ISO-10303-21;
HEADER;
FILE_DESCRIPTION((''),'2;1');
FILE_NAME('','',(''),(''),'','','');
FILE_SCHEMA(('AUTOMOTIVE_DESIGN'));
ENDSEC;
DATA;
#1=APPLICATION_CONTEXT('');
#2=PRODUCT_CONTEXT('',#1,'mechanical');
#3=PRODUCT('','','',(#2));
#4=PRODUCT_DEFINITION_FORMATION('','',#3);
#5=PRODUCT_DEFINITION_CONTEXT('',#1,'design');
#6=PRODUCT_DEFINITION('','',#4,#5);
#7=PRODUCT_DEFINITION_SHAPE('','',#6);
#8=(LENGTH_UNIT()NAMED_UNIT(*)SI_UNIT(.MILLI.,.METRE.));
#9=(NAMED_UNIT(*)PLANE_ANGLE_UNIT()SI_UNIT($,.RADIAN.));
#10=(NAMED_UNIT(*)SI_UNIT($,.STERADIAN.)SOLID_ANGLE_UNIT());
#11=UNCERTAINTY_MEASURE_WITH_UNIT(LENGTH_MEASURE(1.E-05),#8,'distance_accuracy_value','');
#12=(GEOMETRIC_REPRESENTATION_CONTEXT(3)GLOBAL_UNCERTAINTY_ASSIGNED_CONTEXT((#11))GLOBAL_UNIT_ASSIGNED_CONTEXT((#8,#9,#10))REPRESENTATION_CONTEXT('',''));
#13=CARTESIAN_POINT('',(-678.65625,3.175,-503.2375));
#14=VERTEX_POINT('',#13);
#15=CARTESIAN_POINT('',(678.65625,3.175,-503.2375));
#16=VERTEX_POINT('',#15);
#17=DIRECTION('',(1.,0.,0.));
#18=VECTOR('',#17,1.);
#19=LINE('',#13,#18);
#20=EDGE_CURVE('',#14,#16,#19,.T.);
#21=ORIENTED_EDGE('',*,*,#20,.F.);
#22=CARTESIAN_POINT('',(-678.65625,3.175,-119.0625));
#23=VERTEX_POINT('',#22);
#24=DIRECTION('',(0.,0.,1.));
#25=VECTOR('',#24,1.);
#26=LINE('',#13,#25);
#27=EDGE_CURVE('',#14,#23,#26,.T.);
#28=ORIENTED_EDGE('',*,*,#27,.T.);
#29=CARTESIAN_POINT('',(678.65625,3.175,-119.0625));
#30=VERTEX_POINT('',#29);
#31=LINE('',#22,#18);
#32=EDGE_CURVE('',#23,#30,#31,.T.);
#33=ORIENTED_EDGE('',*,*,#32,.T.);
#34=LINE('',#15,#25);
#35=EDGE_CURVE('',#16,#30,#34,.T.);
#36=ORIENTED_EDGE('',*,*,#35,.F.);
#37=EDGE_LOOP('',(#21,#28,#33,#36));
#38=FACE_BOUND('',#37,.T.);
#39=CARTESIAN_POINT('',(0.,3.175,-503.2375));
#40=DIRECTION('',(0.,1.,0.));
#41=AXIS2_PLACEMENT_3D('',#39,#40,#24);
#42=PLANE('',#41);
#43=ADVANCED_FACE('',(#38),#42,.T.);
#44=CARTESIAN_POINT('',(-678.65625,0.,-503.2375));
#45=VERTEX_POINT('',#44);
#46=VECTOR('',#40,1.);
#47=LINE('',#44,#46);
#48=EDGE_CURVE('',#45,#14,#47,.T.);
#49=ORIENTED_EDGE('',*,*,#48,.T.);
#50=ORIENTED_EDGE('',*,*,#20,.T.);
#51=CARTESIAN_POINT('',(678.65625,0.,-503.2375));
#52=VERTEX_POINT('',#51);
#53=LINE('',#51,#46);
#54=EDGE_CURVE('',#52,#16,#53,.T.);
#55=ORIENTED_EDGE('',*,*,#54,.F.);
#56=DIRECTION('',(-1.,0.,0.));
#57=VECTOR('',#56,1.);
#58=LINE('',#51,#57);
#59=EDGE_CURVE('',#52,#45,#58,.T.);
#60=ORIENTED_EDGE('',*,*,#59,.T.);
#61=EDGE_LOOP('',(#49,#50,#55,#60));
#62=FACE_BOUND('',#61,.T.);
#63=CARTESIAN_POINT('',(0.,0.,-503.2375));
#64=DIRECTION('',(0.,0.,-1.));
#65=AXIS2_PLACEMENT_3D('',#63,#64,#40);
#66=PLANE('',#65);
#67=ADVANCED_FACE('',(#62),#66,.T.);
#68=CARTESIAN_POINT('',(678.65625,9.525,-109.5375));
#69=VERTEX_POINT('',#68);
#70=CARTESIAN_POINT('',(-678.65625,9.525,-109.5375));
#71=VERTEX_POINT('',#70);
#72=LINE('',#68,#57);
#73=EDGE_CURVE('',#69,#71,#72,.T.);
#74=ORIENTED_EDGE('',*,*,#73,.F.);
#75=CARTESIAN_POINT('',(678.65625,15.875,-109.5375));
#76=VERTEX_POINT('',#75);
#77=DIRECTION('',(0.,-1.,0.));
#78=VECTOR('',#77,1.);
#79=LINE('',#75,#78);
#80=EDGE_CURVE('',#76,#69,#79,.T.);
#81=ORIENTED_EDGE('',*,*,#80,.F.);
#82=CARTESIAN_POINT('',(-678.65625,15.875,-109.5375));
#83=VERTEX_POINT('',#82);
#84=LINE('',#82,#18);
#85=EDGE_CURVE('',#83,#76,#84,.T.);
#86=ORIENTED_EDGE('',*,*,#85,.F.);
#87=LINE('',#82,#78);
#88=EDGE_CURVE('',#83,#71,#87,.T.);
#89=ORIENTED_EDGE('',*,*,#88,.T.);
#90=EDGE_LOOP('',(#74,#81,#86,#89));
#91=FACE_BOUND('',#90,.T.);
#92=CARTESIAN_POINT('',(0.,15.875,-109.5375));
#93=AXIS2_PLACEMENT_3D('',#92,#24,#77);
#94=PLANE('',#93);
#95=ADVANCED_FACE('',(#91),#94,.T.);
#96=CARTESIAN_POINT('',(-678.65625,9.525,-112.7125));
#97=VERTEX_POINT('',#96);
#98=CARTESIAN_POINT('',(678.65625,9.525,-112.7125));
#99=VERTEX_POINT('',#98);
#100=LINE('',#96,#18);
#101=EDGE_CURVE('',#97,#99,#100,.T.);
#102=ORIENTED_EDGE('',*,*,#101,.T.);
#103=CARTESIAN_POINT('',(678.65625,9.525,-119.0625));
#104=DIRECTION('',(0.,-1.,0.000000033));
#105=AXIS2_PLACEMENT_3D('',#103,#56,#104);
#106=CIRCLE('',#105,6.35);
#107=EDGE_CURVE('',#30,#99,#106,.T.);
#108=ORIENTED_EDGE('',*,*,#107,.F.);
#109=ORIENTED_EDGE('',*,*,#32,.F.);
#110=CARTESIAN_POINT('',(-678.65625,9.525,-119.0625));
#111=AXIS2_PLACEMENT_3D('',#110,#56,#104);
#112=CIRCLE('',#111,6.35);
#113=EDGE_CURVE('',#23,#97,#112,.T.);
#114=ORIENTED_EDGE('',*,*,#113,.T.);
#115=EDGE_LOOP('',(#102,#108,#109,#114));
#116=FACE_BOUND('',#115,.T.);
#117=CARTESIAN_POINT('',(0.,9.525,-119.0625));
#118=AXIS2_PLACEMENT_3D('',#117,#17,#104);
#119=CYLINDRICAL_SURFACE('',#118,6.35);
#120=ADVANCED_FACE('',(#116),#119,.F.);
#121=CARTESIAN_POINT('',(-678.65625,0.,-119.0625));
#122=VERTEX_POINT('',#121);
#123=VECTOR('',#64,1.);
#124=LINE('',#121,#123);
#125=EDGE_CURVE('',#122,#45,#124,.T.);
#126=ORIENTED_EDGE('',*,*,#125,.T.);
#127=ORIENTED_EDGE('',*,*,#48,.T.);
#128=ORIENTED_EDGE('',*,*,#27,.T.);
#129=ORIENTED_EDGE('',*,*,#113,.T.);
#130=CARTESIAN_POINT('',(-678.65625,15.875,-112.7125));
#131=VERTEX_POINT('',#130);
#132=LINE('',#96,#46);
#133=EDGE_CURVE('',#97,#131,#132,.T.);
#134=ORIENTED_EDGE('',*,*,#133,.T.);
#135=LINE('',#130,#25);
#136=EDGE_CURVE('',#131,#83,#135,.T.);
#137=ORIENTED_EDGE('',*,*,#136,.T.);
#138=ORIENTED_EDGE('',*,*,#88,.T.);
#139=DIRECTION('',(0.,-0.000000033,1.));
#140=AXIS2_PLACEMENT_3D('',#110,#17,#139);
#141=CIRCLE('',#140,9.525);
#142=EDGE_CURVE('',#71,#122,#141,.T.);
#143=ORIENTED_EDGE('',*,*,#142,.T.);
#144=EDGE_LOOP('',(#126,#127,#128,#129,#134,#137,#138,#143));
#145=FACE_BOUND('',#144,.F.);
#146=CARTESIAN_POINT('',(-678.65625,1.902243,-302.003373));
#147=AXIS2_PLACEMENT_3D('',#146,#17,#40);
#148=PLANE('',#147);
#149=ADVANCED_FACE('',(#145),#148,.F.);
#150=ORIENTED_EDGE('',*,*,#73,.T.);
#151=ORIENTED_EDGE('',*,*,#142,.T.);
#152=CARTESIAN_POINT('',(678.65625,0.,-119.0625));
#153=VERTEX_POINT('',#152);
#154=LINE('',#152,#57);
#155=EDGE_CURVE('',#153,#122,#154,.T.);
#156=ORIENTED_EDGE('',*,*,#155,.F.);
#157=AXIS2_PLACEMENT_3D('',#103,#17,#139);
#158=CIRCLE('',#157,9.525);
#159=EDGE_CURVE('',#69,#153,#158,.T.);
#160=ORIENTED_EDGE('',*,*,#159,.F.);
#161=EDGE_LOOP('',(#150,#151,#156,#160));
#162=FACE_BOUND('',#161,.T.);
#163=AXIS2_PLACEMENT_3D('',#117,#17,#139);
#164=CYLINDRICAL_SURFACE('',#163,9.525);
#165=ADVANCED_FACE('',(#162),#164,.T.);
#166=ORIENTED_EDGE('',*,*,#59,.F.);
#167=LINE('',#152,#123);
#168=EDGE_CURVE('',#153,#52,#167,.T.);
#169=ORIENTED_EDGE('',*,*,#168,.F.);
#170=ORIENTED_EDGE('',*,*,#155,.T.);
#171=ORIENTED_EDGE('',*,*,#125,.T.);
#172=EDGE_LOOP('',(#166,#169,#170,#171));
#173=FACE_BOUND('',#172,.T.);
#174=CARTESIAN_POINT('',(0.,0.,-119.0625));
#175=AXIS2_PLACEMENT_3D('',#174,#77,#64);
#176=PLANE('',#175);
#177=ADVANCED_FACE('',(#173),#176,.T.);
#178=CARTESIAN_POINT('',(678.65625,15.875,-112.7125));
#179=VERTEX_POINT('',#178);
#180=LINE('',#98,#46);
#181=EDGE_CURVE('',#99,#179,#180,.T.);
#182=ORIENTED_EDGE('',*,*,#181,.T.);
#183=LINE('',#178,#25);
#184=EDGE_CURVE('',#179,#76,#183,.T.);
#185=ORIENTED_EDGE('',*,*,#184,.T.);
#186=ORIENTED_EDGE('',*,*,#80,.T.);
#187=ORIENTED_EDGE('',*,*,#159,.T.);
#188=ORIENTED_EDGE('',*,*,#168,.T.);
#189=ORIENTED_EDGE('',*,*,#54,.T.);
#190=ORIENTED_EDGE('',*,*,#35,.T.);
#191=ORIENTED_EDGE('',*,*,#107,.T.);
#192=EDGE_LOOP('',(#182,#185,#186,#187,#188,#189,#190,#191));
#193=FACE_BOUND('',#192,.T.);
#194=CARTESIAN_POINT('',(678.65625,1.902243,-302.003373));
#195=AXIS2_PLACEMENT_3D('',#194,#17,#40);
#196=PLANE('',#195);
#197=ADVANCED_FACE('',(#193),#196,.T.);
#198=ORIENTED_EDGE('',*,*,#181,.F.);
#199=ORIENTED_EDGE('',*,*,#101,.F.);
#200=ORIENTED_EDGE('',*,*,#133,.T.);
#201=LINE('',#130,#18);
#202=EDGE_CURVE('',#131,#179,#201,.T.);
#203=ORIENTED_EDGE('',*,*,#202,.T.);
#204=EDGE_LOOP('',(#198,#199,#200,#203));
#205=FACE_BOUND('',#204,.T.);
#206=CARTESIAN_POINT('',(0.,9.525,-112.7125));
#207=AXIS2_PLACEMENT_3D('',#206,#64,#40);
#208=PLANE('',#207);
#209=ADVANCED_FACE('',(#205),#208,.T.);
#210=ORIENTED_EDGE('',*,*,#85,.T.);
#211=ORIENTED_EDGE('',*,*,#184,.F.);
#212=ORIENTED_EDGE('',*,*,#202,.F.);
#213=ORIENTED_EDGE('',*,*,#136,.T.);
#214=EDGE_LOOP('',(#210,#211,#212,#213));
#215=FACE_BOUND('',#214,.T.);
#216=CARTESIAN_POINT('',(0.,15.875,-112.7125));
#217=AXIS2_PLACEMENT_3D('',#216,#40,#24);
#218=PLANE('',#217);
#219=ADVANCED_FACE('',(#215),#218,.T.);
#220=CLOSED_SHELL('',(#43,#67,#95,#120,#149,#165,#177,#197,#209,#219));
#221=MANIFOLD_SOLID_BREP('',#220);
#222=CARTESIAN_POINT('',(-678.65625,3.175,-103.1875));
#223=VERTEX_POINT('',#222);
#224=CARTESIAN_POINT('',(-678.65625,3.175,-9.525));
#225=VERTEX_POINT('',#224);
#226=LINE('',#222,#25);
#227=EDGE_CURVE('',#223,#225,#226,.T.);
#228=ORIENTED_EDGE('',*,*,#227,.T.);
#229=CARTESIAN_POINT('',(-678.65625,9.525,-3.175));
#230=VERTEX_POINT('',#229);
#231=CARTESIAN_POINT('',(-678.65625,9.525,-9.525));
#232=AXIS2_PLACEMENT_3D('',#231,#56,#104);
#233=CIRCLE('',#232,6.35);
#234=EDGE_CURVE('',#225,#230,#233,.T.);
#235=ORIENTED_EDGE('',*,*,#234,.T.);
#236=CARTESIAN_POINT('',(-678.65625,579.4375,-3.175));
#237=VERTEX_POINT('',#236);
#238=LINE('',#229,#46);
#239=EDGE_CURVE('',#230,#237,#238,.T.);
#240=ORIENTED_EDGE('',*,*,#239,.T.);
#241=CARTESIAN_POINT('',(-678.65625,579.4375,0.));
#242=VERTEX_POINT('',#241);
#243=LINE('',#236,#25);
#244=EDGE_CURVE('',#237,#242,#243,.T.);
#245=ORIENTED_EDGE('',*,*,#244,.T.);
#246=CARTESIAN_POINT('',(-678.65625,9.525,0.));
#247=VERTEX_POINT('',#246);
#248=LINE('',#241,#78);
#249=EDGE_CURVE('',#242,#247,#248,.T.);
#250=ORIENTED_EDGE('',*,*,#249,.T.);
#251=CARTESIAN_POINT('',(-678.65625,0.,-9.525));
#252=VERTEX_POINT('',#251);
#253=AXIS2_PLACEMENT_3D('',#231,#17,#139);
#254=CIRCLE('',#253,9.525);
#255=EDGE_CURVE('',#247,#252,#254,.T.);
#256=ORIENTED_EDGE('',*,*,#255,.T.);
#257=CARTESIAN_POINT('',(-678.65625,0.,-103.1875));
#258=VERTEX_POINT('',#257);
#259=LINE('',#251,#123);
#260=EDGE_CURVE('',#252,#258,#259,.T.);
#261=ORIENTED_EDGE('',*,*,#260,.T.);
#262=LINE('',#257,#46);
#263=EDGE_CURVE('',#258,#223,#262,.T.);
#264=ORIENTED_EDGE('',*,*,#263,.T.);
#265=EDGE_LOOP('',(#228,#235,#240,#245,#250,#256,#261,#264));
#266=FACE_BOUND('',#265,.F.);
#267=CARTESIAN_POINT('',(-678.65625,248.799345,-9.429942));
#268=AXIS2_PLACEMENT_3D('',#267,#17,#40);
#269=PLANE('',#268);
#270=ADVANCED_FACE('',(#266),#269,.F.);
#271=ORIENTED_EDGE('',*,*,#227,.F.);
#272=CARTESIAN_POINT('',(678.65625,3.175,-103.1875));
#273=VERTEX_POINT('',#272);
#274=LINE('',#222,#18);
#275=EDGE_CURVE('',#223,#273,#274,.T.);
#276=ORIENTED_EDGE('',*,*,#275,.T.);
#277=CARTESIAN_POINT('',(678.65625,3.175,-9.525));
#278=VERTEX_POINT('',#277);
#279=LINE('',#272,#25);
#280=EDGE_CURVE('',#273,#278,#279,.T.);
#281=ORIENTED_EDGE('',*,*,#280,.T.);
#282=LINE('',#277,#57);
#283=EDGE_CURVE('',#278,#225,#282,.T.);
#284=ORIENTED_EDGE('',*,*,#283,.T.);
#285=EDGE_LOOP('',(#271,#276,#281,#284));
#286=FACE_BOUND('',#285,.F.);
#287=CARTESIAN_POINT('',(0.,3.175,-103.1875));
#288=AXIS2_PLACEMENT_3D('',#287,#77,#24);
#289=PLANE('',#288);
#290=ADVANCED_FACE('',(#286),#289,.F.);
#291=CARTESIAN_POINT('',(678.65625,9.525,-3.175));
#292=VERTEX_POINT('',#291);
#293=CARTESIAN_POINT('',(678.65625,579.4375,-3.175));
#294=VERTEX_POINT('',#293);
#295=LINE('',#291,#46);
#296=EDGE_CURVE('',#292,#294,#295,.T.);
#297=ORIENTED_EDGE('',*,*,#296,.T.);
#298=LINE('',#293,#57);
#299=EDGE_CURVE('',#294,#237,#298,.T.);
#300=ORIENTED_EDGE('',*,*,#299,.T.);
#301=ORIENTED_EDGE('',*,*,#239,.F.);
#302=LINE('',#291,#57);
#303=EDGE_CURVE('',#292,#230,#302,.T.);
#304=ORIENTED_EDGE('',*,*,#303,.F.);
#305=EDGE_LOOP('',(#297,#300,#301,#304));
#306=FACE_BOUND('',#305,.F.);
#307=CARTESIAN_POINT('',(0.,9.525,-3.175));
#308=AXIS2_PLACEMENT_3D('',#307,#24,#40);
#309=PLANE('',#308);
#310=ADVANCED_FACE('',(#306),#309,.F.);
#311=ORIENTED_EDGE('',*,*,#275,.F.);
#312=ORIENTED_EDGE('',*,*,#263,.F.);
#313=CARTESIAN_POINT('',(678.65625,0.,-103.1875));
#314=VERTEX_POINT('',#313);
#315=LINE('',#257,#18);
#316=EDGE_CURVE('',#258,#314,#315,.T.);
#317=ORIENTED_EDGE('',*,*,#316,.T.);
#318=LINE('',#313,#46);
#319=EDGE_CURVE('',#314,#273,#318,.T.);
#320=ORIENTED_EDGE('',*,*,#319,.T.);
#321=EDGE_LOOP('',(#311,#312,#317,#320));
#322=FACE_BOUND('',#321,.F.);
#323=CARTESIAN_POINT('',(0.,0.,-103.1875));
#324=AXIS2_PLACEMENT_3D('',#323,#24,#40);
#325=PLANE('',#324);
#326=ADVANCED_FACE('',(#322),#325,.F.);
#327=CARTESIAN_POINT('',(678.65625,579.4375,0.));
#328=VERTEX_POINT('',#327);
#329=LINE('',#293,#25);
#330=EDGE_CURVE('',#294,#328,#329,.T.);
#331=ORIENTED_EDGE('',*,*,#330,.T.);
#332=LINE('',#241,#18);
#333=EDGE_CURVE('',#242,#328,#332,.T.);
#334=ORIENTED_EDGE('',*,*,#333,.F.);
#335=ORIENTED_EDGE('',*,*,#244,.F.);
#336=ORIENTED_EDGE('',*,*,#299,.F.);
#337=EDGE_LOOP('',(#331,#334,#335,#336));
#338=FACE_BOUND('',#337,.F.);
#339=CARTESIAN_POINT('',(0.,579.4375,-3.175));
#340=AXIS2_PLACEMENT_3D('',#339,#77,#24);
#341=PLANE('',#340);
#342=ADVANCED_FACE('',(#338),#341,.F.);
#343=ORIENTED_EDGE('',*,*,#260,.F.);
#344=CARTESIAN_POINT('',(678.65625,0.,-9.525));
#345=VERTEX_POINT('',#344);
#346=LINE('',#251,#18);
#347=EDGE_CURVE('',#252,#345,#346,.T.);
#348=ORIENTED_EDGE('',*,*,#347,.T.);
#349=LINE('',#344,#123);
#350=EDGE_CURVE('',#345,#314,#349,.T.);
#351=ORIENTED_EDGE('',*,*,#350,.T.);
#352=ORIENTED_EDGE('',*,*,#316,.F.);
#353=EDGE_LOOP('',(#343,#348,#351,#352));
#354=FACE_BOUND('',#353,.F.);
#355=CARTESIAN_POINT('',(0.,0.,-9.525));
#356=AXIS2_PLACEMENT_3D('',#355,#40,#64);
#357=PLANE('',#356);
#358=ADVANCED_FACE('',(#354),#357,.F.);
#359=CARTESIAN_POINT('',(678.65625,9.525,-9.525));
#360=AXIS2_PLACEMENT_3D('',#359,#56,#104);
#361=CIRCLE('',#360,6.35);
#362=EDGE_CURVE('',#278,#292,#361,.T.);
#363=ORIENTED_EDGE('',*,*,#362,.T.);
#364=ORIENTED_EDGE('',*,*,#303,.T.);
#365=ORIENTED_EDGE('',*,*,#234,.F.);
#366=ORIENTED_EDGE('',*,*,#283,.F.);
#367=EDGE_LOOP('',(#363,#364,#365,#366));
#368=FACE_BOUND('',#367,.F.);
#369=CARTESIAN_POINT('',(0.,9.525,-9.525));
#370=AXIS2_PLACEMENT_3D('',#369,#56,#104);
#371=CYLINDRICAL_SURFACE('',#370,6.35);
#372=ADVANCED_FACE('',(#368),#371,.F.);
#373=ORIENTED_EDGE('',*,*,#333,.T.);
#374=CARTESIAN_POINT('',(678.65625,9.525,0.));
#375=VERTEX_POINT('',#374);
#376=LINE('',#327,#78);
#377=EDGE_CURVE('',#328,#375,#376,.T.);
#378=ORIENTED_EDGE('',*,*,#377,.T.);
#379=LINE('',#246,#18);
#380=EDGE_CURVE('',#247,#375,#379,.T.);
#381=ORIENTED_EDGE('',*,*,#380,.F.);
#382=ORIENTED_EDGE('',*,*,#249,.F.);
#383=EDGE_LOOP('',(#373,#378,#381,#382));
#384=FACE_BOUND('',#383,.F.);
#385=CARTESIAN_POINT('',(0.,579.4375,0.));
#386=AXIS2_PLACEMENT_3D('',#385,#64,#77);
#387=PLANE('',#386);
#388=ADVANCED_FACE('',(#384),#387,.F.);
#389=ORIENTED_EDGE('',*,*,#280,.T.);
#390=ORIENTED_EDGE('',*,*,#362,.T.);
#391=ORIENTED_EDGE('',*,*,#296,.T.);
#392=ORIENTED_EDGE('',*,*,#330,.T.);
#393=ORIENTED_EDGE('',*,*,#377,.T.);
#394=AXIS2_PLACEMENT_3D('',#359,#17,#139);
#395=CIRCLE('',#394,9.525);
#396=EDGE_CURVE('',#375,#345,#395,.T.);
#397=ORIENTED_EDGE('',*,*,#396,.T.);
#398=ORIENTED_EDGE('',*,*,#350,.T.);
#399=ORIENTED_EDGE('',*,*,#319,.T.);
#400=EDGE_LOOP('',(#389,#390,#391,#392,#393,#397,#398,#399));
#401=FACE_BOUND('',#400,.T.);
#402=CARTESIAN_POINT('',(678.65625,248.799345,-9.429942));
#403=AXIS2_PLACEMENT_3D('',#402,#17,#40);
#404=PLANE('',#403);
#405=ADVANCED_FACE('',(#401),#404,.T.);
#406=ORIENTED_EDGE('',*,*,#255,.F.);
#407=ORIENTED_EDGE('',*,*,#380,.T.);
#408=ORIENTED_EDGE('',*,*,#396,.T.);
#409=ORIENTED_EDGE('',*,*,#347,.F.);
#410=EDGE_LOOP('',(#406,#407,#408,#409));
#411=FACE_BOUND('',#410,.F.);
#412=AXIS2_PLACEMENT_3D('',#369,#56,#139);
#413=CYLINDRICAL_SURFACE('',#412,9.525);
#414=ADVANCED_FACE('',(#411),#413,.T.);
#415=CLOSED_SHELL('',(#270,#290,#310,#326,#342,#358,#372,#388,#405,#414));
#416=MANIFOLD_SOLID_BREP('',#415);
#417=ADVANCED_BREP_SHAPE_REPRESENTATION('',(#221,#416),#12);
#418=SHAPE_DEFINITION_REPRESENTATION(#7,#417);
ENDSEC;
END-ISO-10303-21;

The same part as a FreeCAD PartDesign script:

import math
import FreeCAD as App
import Part
import Sketcher
from FreeCAD import Vector
Q = App.Units.Quantity

doc = App.newDocument("Part")
body = doc.addObject("PartDesign::Body", "Body")
body.AllowCompound = True

sketch1 = body.newObject("Sketcher::SketchObject", "Sketch")
sketch1.AttachmentSupport = (doc.getObject("YZ_Plane"), [""])
sketch1.MapMode = "FlatFace"
sketch1.addGeometry(Part.LineSegment(Vector(579.4, -3.2, 0), Vector(579.4, 0, 0)), False)
sketch1.addGeometry(Part.LineSegment(Vector(579.4, 0, 0), Vector(9.5, 0, 0)), False)
sketch1.addGeometry(Part.ArcOfCircle(Part.Circle(Vector(9.5, -9.5, 0), Vector(0, 0, 1), 9.5), math.radians(90), math.radians(180)), False)
sketch1.addGeometry(Part.LineSegment(Vector(0, -9.5, 0), Vector(0, -103.2, 0)), False)
sketch1.addGeometry(Part.LineSegment(Vector(0, -103.2, 0), Vector(3.2, -103.2, 0)), False)
sketch1.addGeometry(Part.LineSegment(Vector(3.2, -103.2, 0), Vector(3.2, -9.5, 0)), False)
sketch1.addGeometry(Part.ArcOfCircle(Part.Circle(Vector(9.5, -9.5, 0), Vector(0, 0, 1), 6.4), math.radians(90), math.radians(180)), False)
sketch1.addGeometry(Part.LineSegment(Vector(9.5, -3.2, 0), Vector(579.4, -3.2, 0)), False)
sketch1.addGeometry(Part.LineSegment(Vector(0, -503.2, 0), Vector(3.2, -503.2, 0)), False)
sketch1.addGeometry(Part.LineSegment(Vector(3.2, -503.2, 0), Vector(3.2, -119.1, 0)), False)
sketch1.addGeometry(Part.ArcOfCircle(Part.Circle(Vector(9.5, -119.1, 0), Vector(0, 0, 1), 6.4), math.radians(90), math.radians(180)), False)
sketch1.addGeometry(Part.LineSegment(Vector(9.5, -112.7, 0), Vector(15.9, -112.7, 0)), False)
sketch1.addGeometry(Part.LineSegment(Vector(15.9, -112.7, 0), Vector(15.9, -109.5, 0)), False)
sketch1.addGeometry(Part.LineSegment(Vector(15.9, -109.5, 0), Vector(9.5, -109.5, 0)), False)
sketch1.addGeometry(Part.ArcOfCircle(Part.Circle(Vector(9.5, -119.1, 0), Vector(0, 0, 1), 9.5), math.radians(90), math.radians(180)), False)
sketch1.addGeometry(Part.LineSegment(Vector(0, -119.1, 0), Vector(0, -503.2, 0)), False)
sketch1.addConstraint(Sketcher.Constraint("Coincident", 0, 2, 1, 1))
sketch1.addConstraint(Sketcher.Constraint("Tangent", 1, 2, 2, 1))
sketch1.addConstraint(Sketcher.Constraint("Tangent", 2, 2, 3, 1))
sketch1.addConstraint(Sketcher.Constraint("Coincident", 3, 2, 4, 1))
sketch1.addConstraint(Sketcher.Constraint("Coincident", 4, 2, 5, 1))
sketch1.addConstraint(Sketcher.Constraint("Tangent", 5, 2, 6, 2))
sketch1.addConstraint(Sketcher.Constraint("Tangent", 6, 1, 7, 1))
sketch1.addConstraint(Sketcher.Constraint("Coincident", 7, 2, 0, 1))
sketch1.addConstraint(Sketcher.Constraint("Coincident", 8, 2, 9, 1))
sketch1.addConstraint(Sketcher.Constraint("Tangent", 9, 2, 10, 2))
sketch1.addConstraint(Sketcher.Constraint("Tangent", 10, 1, 11, 1))
sketch1.addConstraint(Sketcher.Constraint("Coincident", 11, 2, 12, 1))
sketch1.addConstraint(Sketcher.Constraint("Coincident", 12, 2, 13, 1))
sketch1.addConstraint(Sketcher.Constraint("Tangent", 13, 2, 14, 1))
sketch1.addConstraint(Sketcher.Constraint("Tangent", 14, 2, 15, 1))
sketch1.addConstraint(Sketcher.Constraint("Coincident", 15, 2, 8, 1))
sketch1.addConstraint(Sketcher.Constraint("Vertical", 0))
sketch1.addConstraint(Sketcher.Constraint("Horizontal", 1))
sketch1.addConstraint(Sketcher.Constraint("Vertical", 3))
sketch1.addConstraint(Sketcher.Constraint("Horizontal", 4))
sketch1.addConstraint(Sketcher.Constraint("Vertical", 5))
sketch1.addConstraint(Sketcher.Constraint("Horizontal", 7))
sketch1.addConstraint(Sketcher.Constraint("Horizontal", 8))
sketch1.addConstraint(Sketcher.Constraint("Vertical", 9))
sketch1.addConstraint(Sketcher.Constraint("Horizontal", 11))
sketch1.addConstraint(Sketcher.Constraint("Vertical", 12))
sketch1.addConstraint(Sketcher.Constraint("Horizontal", 13))
sketch1.addConstraint(Sketcher.Constraint("Vertical", 15))
sketch1.addConstraint(Sketcher.Constraint("Coincident", 6, 3, 2, 3))
sketch1.addConstraint(Sketcher.Constraint("Coincident", 14, 3, 10, 3))
sketch1.addConstraint(Sketcher.Constraint("Equal", 6, 10))
sketch1.addConstraint(Sketcher.Constraint("Equal", 2, 14))
sketch1.addConstraint(Sketcher.Constraint("PointOnObject", 0, 2, -1))
sketch1.addConstraint(Sketcher.Constraint("PointOnObject", 2, 2, -2))
sketch1.addConstraint(Sketcher.Constraint("PointOnObject", 14, 2, -2))
sketch1.addConstraint(Sketcher.Constraint("Radius", 6, Q("0.25 in")))
sketch1.addConstraint(Sketcher.Constraint("Radius", 2, Q("0.375 in")))
sketch1.addConstraint(Sketcher.Constraint("DistanceX", 11, 1, 11, 2, Q("0.25 in")))
sketch1.addConstraint(Sketcher.Constraint("DistanceX", 1, 2, 1, 1, Q("22.4375 in")))
sketch1.addConstraint(Sketcher.Constraint("DistanceY", 3, 2, 3, 1, Q("3.6875 in")))
sketch1.addConstraint(Sketcher.Constraint("DistanceY", 9, 1, 9, 2, Q("15.125 in")))
sketch1.addConstraint(Sketcher.Constraint("DistanceY", 8, 2, 4, 2, Q("15.75 in")))
pad1 = body.newObject("PartDesign::Pad", "Pad")
pad1.Profile = sketch1
pad1.Length = Q("53.4375 in")
pad1.Midplane = True

doc.recompute()
